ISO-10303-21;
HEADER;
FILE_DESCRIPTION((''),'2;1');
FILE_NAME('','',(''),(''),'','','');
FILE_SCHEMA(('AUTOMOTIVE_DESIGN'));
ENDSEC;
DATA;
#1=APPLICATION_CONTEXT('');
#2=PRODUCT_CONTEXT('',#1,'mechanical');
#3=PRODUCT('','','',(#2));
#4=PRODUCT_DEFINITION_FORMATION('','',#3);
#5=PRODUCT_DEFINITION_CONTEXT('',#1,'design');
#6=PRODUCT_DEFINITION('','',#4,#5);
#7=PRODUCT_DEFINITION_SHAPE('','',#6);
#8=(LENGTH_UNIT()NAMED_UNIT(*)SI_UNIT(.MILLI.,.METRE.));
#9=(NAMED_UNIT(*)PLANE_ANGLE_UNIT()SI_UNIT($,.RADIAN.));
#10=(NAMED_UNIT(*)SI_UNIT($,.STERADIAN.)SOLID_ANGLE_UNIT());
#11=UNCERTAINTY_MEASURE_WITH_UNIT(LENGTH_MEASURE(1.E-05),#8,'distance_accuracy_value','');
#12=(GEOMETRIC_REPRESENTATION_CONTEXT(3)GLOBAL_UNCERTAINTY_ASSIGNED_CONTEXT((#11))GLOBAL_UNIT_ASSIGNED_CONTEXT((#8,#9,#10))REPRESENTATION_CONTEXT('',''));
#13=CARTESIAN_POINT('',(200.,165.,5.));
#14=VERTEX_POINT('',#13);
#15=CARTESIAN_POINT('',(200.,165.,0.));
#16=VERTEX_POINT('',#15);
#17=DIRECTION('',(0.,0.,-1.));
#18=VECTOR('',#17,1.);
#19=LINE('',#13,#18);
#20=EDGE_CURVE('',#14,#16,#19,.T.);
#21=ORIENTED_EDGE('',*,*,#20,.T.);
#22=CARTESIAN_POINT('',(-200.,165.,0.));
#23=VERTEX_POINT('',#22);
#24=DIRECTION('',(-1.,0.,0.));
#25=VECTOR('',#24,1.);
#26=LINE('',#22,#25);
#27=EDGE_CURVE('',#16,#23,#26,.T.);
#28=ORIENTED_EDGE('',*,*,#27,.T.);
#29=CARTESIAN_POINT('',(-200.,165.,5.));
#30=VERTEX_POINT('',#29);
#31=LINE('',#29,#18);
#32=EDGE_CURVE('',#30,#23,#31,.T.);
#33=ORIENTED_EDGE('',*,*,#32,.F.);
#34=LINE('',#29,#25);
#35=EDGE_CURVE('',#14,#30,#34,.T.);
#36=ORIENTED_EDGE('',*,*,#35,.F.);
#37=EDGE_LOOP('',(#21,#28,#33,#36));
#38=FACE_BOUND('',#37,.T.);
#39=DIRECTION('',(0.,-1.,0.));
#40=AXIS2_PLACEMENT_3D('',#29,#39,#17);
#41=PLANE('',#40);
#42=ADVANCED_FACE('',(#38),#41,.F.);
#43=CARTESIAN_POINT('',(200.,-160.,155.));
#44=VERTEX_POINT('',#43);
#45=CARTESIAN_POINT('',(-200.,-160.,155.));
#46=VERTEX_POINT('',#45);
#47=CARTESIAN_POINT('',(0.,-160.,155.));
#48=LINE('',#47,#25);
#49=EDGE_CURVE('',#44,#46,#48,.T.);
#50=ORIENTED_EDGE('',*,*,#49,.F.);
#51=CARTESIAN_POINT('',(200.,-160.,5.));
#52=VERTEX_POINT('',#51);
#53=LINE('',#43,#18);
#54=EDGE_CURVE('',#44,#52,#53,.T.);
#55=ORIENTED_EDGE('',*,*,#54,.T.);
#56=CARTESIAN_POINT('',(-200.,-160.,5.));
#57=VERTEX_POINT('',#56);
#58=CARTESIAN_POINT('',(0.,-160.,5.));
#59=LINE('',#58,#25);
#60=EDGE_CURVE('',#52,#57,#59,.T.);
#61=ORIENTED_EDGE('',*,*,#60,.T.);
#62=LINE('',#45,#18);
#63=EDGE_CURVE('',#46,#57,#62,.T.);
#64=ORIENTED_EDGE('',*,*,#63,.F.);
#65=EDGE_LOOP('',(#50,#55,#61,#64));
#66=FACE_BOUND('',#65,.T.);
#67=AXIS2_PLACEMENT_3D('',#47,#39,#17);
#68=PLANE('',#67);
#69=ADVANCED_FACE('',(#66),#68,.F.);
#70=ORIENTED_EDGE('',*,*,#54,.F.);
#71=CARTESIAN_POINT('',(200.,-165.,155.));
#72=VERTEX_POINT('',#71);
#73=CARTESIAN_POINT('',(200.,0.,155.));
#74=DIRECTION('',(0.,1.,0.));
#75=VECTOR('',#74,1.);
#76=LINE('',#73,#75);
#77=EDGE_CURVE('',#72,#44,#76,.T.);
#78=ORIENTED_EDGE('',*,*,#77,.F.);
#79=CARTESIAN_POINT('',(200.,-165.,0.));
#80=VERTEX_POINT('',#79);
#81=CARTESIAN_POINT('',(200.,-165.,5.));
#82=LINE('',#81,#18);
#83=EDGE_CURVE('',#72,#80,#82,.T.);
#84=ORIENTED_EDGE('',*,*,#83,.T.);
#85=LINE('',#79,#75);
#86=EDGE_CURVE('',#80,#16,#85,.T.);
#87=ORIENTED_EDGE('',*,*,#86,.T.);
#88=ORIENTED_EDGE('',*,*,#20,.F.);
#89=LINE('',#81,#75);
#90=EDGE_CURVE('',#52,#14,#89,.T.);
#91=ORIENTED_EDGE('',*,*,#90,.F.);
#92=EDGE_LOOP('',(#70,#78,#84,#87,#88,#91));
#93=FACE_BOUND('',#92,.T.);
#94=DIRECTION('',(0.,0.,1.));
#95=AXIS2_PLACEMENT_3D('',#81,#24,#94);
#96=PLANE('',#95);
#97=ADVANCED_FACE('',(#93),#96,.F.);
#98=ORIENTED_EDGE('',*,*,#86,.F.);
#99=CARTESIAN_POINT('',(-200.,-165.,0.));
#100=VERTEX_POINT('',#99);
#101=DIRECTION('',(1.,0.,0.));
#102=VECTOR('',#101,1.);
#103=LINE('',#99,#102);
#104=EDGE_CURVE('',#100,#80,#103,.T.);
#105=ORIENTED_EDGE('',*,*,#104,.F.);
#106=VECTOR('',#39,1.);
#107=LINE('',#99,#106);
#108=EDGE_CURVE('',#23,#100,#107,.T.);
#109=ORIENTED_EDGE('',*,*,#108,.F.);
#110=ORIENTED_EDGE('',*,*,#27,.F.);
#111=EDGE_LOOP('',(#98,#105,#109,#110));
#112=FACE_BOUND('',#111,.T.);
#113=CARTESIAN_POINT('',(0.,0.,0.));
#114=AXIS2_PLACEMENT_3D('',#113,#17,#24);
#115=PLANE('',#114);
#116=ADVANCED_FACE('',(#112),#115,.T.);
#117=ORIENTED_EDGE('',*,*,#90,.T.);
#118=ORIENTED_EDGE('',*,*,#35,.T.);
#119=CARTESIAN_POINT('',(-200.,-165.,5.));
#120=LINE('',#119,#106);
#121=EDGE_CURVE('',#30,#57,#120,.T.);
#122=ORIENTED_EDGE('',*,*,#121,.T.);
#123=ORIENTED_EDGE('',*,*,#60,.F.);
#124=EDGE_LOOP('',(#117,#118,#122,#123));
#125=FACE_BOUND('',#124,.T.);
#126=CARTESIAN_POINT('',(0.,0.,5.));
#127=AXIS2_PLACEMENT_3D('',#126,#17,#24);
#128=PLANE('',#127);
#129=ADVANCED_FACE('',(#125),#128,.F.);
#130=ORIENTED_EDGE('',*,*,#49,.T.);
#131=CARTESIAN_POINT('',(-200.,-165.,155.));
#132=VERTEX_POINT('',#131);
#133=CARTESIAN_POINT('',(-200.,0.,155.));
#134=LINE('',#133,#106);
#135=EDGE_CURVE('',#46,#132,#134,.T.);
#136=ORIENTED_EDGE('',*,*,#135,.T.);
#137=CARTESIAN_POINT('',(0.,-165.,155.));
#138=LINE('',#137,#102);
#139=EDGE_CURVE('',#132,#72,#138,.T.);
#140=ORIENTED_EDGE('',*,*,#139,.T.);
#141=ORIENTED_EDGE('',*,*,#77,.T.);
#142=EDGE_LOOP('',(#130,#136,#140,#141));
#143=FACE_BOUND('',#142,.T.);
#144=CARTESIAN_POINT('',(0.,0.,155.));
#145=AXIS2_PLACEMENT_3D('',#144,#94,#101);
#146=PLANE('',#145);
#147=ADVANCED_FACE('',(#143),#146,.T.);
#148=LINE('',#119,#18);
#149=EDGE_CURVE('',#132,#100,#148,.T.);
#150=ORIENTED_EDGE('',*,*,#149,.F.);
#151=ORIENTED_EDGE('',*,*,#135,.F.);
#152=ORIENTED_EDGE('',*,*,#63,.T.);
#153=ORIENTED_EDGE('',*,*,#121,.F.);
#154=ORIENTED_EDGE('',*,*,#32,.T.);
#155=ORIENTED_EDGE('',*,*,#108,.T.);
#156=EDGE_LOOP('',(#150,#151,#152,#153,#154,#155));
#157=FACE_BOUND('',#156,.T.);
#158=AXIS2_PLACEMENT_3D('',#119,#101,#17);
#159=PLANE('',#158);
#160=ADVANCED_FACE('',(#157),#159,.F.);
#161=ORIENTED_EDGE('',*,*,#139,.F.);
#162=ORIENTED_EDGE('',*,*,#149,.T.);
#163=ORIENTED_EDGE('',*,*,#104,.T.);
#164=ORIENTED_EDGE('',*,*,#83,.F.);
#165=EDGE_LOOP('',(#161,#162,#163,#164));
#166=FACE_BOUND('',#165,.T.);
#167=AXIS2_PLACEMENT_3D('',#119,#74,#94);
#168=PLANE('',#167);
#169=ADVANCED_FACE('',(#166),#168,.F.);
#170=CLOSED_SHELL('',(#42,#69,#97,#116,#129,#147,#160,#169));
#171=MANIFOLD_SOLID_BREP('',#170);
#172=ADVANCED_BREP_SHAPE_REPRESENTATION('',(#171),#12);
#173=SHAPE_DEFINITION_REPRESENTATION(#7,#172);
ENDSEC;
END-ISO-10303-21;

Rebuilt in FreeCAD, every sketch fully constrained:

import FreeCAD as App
import Part
import Sketcher

V = App.Vector


def add_polygon(sketch, points):
    """Adds a closed chain of lines whose ends are joined by coincident constraints."""
    first, n = sketch.GeometryCount, len(points)
    for a, b in zip(points, points[1:] + points[:1]):
        sketch.addGeometry(Part.LineSegment(App.Vector(*a, 0), App.Vector(*b, 0)), False)
    for i in range(n):
        sketch.addConstraint(Sketcher.Constraint("Coincident", first + i, 2, first + (i + 1) % n, 1))

doc = App.newDocument("Part")
body = doc.addObject("PartDesign::Body", "Body")

# Sketch on XY plane
sketch1 = body.newObject("Sketcher::SketchObject", "Sketch")
sketch1.AttachmentSupport = (doc.getObject("XY_Plane"), [""])
sketch1.MapMode = "FlatFace"
add_polygon(sketch1, [(-200, 165), (-200, -165), (200, -165), (200, 165)])  # lines 0-3
sketch1.addConstraint(Sketcher.Constraint("Vertical", 0))
sketch1.addConstraint(Sketcher.Constraint("Horizontal", 1))
sketch1.addConstraint(Sketcher.Constraint("Vertical", 2))
sketch1.addConstraint(Sketcher.Constraint("Horizontal", 3))
sketch1.addConstraint(Sketcher.Constraint("Symmetric", 0, 2, 2, 2, -1, 1))
sketch1.addConstraint(Sketcher.Constraint("DistanceX", 1, 1, 1, 2, 400.0))
sketch1.addConstraint(Sketcher.Constraint("DistanceY", 0, 2, 0, 1, 330.0))
pad1 = body.newObject("PartDesign::Pad", "Pad")
pad1.Profile = sketch1
pad1.Length = 5

# Sketch on XY plane
sketch2 = body.newObject("Sketcher::SketchObject", "Sketch001")
sketch2.AttachmentSupport = (doc.getObject("XY_Plane"), [""])
sketch2.MapMode = "FlatFace"
sketch2.AttachmentOffset = App.Placement(V(0, 0, 5), App.Rotation())
add_polygon(sketch2, [(-200, -160), (-200, -165), (200, -165), (200, -160)])  # lines 0-3
sketch2.addConstraint(Sketcher.Constraint("Vertical", 0))
sketch2.addConstraint(Sketcher.Constraint("Horizontal", 1))
sketch2.addConstraint(Sketcher.Constraint("Vertical", 2))
sketch2.addConstraint(Sketcher.Constraint("Horizontal", 3))
sketch2.addConstraint(Sketcher.Constraint("DistanceX", 1, 1, 1, 2, 400.0))
sketch2.addConstraint(Sketcher.Constraint("DistanceY", 0, 2, 0, 1, 5.0))
sketch2.addConstraint(Sketcher.Constraint("DistanceX", 0, 2, -1, 1, 200.0))
sketch2.addConstraint(Sketcher.Constraint("DistanceY", 0, 2, -1, 1, 165.0))
pad2 = body.newObject("PartDesign::Pad", "Pad001")
pad2.Profile = sketch2
pad2.Length = 150

doc.recompute()
